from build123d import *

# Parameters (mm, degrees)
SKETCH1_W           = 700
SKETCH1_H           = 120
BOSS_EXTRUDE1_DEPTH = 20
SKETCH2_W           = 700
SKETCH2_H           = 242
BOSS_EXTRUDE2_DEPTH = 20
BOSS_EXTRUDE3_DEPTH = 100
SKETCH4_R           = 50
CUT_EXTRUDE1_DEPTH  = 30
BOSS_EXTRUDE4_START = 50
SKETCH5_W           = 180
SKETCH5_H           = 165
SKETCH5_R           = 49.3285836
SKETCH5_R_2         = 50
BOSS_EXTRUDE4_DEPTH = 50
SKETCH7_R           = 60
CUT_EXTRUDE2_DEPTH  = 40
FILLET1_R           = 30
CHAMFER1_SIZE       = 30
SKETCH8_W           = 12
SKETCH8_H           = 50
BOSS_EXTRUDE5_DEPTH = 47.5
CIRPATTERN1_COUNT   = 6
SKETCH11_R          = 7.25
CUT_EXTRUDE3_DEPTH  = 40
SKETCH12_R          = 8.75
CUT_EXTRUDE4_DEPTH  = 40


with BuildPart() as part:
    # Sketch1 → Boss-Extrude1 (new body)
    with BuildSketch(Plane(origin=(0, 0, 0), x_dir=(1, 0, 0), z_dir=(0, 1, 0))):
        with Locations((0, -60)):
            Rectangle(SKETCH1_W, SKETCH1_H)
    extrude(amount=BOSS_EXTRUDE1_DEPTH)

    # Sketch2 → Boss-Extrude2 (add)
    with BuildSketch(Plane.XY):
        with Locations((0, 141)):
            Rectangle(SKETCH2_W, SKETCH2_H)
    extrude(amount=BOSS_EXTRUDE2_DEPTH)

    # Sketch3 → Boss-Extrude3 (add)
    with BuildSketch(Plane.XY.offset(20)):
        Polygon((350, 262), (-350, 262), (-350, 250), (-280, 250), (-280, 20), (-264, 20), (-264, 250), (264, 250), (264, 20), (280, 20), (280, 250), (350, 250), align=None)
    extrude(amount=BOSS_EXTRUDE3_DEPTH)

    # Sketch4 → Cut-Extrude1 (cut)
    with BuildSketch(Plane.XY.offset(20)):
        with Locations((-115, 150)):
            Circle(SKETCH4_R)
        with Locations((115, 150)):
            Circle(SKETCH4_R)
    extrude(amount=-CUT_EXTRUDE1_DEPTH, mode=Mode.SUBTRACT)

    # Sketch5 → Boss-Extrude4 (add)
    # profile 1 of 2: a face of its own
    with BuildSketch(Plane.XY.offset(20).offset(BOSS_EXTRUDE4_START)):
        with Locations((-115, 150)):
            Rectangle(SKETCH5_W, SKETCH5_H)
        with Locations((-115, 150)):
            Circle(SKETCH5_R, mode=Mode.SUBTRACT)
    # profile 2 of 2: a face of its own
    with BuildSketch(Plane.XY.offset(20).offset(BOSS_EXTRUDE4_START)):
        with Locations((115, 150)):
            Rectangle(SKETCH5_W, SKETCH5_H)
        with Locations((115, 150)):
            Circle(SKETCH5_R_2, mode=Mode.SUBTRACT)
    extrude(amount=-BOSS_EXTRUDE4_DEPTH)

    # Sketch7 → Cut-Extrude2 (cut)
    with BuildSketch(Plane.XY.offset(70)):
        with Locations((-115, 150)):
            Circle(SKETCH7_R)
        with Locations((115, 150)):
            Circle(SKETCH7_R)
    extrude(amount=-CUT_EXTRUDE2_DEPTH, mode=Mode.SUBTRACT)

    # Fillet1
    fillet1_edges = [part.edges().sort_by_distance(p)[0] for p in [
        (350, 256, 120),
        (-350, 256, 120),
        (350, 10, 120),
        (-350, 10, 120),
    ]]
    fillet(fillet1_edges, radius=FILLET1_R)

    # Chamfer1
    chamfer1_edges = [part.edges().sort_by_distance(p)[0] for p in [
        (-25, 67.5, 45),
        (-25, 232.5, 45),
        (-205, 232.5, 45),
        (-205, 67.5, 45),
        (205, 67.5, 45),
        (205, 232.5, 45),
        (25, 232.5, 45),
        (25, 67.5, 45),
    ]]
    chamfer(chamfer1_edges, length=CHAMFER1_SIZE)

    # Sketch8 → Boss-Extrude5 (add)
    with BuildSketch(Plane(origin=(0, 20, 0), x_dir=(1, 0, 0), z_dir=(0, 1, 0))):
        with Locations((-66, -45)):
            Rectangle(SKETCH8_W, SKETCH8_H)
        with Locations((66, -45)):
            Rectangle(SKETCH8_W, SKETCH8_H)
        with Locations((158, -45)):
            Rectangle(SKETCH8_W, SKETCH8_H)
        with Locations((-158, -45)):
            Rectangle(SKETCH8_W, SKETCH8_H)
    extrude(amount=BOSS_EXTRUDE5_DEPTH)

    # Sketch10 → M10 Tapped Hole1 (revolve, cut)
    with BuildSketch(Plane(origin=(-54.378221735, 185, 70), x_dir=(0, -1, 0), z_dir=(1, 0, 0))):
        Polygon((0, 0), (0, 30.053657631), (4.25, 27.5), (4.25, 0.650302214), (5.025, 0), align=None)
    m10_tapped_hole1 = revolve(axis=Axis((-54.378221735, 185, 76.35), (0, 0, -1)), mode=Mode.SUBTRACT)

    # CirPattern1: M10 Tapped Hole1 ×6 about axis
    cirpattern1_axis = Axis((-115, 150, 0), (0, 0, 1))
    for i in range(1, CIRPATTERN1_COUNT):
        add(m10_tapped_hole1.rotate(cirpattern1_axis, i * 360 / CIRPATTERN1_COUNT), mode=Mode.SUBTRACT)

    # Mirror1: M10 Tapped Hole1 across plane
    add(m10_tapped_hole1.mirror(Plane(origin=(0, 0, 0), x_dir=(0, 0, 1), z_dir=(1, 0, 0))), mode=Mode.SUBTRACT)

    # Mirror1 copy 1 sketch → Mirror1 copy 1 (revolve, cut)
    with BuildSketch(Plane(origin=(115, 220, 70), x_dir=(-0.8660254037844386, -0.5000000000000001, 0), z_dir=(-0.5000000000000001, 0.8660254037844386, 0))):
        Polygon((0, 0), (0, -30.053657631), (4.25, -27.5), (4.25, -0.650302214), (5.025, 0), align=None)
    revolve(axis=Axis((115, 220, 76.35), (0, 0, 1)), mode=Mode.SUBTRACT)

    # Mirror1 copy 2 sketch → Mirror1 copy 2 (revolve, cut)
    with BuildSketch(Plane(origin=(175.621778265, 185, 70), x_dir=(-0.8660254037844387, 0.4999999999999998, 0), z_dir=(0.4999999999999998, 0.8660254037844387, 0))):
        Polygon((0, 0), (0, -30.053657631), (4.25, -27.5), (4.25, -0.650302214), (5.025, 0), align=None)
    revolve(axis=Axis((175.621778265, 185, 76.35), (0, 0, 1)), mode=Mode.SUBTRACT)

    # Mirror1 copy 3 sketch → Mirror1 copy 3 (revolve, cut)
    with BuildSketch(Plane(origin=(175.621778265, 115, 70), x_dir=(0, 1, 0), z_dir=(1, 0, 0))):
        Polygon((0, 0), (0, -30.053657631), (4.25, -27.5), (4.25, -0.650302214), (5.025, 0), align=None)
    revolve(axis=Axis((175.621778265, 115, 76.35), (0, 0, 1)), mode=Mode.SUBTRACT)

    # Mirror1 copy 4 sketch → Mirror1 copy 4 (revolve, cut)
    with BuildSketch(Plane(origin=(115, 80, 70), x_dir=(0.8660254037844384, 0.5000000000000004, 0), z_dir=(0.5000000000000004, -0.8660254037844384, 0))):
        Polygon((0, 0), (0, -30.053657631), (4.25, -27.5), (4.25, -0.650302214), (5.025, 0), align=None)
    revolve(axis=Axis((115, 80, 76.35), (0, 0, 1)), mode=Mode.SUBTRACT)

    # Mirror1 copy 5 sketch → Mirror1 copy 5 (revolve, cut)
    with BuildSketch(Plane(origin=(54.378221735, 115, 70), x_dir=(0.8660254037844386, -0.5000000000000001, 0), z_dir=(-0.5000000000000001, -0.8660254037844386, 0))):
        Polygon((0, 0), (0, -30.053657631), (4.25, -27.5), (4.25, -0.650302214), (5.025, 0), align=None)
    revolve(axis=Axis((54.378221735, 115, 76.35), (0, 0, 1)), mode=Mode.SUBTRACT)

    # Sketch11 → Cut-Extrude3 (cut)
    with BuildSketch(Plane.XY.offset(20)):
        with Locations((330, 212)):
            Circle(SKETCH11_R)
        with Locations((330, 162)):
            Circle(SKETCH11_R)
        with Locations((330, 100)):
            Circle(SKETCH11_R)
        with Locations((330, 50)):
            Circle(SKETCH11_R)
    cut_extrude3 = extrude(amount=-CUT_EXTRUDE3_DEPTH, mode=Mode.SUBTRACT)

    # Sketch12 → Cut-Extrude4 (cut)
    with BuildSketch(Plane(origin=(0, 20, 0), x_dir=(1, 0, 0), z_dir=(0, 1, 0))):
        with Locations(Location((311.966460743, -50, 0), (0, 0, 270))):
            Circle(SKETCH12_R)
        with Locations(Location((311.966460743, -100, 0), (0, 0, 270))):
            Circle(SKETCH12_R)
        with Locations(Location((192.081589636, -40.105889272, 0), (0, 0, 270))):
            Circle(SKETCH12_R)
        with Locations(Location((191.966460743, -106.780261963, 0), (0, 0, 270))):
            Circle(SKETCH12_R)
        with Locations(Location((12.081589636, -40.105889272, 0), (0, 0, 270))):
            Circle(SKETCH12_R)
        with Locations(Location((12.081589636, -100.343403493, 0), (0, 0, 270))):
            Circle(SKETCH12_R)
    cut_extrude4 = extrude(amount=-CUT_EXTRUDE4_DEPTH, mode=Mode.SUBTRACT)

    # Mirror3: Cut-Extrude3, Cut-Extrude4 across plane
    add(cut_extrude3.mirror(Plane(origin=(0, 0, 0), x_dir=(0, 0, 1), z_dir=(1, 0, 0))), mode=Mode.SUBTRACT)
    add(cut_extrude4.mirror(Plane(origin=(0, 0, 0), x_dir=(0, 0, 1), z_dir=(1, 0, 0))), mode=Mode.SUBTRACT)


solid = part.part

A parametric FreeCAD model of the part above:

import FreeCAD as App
import Part
import Sketcher

V = App.Vector
Q = App.Units.Quantity


def edges_at(feature, points):
    """Names of the edges that pass closest to the given points."""
    edges = feature.Shape.Edges
    near = lambda p: min(range(len(edges)), key=lambda i: edges[i].distToShape(Part.Vertex(*p))[0])
    return sorted({f"Edge{near(p) + 1}" for p in points})

doc = App.newDocument("Part")
body = doc.addObject("PartDesign::Body", "Body")

# Sketch on XZ plane
sketch1 = body.newObject("Sketcher::SketchObject", "Sketch")
sketch1.AttachmentSupport = (doc.getObject("XZ_Plane"), [""])
sketch1.MapMode = "FlatFace"
sketch1.addGeometry([
    Part.LineSegment(V(-350, 0, 0), V(-350, 120, 0)),
    Part.LineSegment(V(-350, 120, 0), V(350, 120, 0)),
    Part.LineSegment(V(350, 120, 0), V(350, 0, 0)),
    Part.LineSegment(V(350, 0, 0), V(-350, 0, 0)),
], False)
sketch1.addConstraint([
    Sketcher.Constraint("Coincident", 0, 2, 1, 1),
    Sketcher.Constraint("Coincident", 1, 2, 2, 1),
    Sketcher.Constraint("Coincident", 2, 2, 3, 1),
    Sketcher.Constraint("Coincident", 3, 2, 0, 1),
    Sketcher.Constraint("Vertical", 0),
    Sketcher.Constraint("Horizontal", 1),
    Sketcher.Constraint("Vertical", 2),
    Sketcher.Constraint("Horizontal", 3),
    Sketcher.Constraint("Symmetric", 2, 2, 3, 2, -1, 1),
    Sketcher.Constraint("DistanceX", 1, 1, 1, 2, Q("700 mm")),
    Sketcher.Constraint("DistanceY", 0, 1, 0, 2, Q("120 mm")),
])
pad1 = body.newObject("PartDesign::Pad", "Pad")
pad1.Profile = sketch1
pad1.Length = 20
pad1.Reversed = True

# Sketch on XY plane
sketch2 = body.newObject("Sketcher::SketchObject", "Sketch001")
sketch2.AttachmentSupport = (doc.getObject("XY_Plane"), [""])
sketch2.MapMode = "FlatFace"
sketch2.addGeometry([
    Part.LineSegment(V(-350, 262, 0), V(-350, 20, 0)),
    Part.LineSegment(V(-350, 20, 0), V(350, 20, 0)),
    Part.LineSegment(V(350, 20, 0), V(350, 262, 0)),
    Part.LineSegment(V(350, 262, 0), V(-350, 262, 0)),
], False)
sketch2.addConstraint([
    Sketcher.Constraint("Coincident", 0, 2, 1, 1),
    Sketcher.Constraint("Coincident", 1, 2, 2, 1),
    Sketcher.Constraint("Coincident", 2, 2, 3, 1),
    Sketcher.Constraint("Coincident", 3, 2, 0, 1),
    Sketcher.Constraint("Vertical", 0),
    Sketcher.Constraint("Horizontal", 1),
    Sketcher.Constraint("Vertical", 2),
    Sketcher.Constraint("Horizontal", 3),
    Sketcher.Constraint("DistanceX", 1, 1, 1, 2, Q("700 mm")),
    Sketcher.Constraint("DistanceY", 0, 2, 0, 1, Q("242 mm")),
    Sketcher.Constraint("DistanceX", 0, 2, -1, 1, Q("350 mm")),
    Sketcher.Constraint("DistanceY", -1, 1, 0, 2, Q("20 mm")),
])
pad2 = body.newObject("PartDesign::Pad", "Pad001")
pad2.Profile = sketch2
pad2.Length = 20

# Sketch on XY plane
sketch3 = body.newObject("Sketcher::SketchObject", "Sketch002")
sketch3.AttachmentSupport = (doc.getObject("XY_Plane"), [""])
sketch3.MapMode = "FlatFace"
sketch3.AttachmentOffset = App.Placement(V(0, 0, 20), App.Rotation())
sketch3.addGeometry([
    Part.LineSegment(V(350, 262, 0), V(-350, 262, 0)),  # 0
    Part.LineSegment(V(-350, 262, 0), V(-350, 250, 0)),  # 1
    Part.LineSegment(V(-350, 250, 0), V(-280, 250, 0)),  # 2
    Part.LineSegment(V(-280, 250, 0), V(-280, 20, 0)),  # 3
    Part.LineSegment(V(-280, 20, 0), V(-264, 20, 0)),  # 4
    Part.LineSegment(V(-264, 20, 0), V(-264, 250, 0)),  # 5
    Part.LineSegment(V(-264, 250, 0), V(264, 250, 0)),  # 6
    Part.LineSegment(V(264, 250, 0), V(264, 20, 0)),  # 7
    Part.LineSegment(V(264, 20, 0), V(280, 20, 0)),  # 8
    Part.LineSegment(V(280, 20, 0), V(280, 250, 0)),  # 9
    Part.LineSegment(V(280, 250, 0), V(350, 250, 0)),  # 10
    Part.LineSegment(V(350, 250, 0), V(350, 262, 0)),  # 11
], False)
sketch3.addConstraint([
    Sketcher.Constraint("Coincident", 0, 2, 1, 1),
    Sketcher.Constraint("Coincident", 1, 2, 2, 1),
    Sketcher.Constraint("Coincident", 2, 2, 3, 1),
    Sketcher.Constraint("Coincident", 3, 2, 4, 1),
    Sketcher.Constraint("Coincident", 4, 2, 5, 1),
    Sketcher.Constraint("Coincident", 5, 2, 6, 1),
    Sketcher.Constraint("Coincident", 6, 2, 7, 1),
    Sketcher.Constraint("Coincident", 7, 2, 8, 1),
    Sketcher.Constraint("Coincident", 8, 2, 9, 1),
    Sketcher.Constraint("Coincident", 9, 2, 10, 1),
    Sketcher.Constraint("Coincident", 10, 2, 11, 1),
    Sketcher.Constraint("Coincident", 11, 2, 0, 1),
    Sketcher.Constraint("Horizontal", 0),
    Sketcher.Constraint("Vertical", 1),
    Sketcher.Constraint("Horizontal", 2),
    Sketcher.Constraint("Vertical", 3),
    Sketcher.Constraint("Horizontal", 4),
    Sketcher.Constraint("Vertical", 5),
    Sketcher.Constraint("Horizontal", 6),
    Sketcher.Constraint("Vertical", 7),
    Sketcher.Constraint("Horizontal", 8),
    Sketcher.Constraint("Vertical", 9),
    Sketcher.Constraint("Horizontal", 10),
    Sketcher.Constraint("Vertical", 11),
    Sketcher.Constraint("Symmetric", 4, 2, 7, 2, -2),
    Sketcher.Constraint("Symmetric", 2, 2, 9, 2, -2),
    Sketcher.Constraint("Horizontal", 2, 2, 5, 2),
    Sketcher.Constraint("Equal", 2, 10),
    Sketcher.Constraint("DistanceX", 0, 2, 0, 1, Q("700 mm")),
    Sketcher.Constraint("DistanceX", 2, 1, 2, 2, Q("70 mm")),
    Sketcher.Constraint("DistanceX", 4, 1, 4, 2, Q("16 mm")),
    Sketcher.Constraint("DistanceY", 1, 2, 1, 1, Q("12 mm")),
    Sketcher.Constraint("DistanceY", 3, 2, 3, 1, Q("230 mm")),
    Sketcher.Constraint("DistanceY", -1, 1, 0, 2, Q("262 mm")),
])
pad3 = body.newObject("PartDesign::Pad", "Pad002")
pad3.Profile = sketch3
pad3.Length = 100

# Sketch on XY plane
sketch4 = body.newObject("Sketcher::SketchObject", "Sketch003")
sketch4.AttachmentSupport = (doc.getObject("XY_Plane"), [""])
sketch4.MapMode = "FlatFace"
sketch4.AttachmentOffset = App.Placement(V(0, 0, 20), App.Rotation())
sketch4.addGeometry([
    Part.Circle(V(-115, 150, 0), V(0, 0, 1), 50),
    Part.Circle(V(115, 150, 0), V(0, 0, 1), 50),
], False)
sketch4.addConstraint([
    Sketcher.Constraint("Equal", 0, 1),
    Sketcher.Constraint("Symmetric", 0, 3, 1, 3, -2),
    Sketcher.Constraint("Diameter", 0, Q("100 mm")),
    Sketcher.Constraint("DistanceX", 0, 3, -1, 1, Q("115 mm")),
    Sketcher.Constraint("DistanceY", -1, 1, 0, 3, Q("150 mm")),
])
pocket1 = body.newObject("PartDesign::Pocket", "Pocket")
pocket1.Profile = sketch4
pocket1.Length = 30

# Sketch on XY plane
sketch5 = body.newObject("Sketcher::SketchObject", "Sketch004")
sketch5.AttachmentSupport = (doc.getObject("XY_Plane"), [""])
sketch5.MapMode = "FlatFace"
sketch5.AttachmentOffset = App.Placement(V(0, 0, 70), App.Rotation())
sketch5.addGeometry([
    Part.LineSegment(V(-205, 232, 0), V(-205, 68, 0)),  # 0
    Part.LineSegment(V(-205, 68, 0), V(-25, 68, 0)),  # 1
    Part.LineSegment(V(-25, 68, 0), V(-25, 232, 0)),  # 2
    Part.LineSegment(V(-25, 232, 0), V(-205, 232, 0)),  # 3
    Part.Circle(V(-115, 150, 0), V(0, 0, 1), 49),  # 4
    Part.LineSegment(V(25, 232, 0), V(25, 68, 0)),  # 5
    Part.LineSegment(V(25, 68, 0), V(205, 68, 0)),  # 6
    Part.LineSegment(V(205, 68, 0), V(205, 232, 0)),  # 7
    Part.LineSegment(V(205, 232, 0), V(25, 232, 0)),  # 8
    Part.Circle(V(115, 150, 0), V(0, 0, 1), 50),  # 9
], False)
sketch5.addConstraint([
    Sketcher.Constraint("Coincident", 0, 2, 1, 1),
    Sketcher.Constraint("Coincident", 1, 2, 2, 1),
    Sketcher.Constraint("Coincident", 2, 2, 3, 1),
    Sketcher.Constraint("Coincident", 3, 2, 0, 1),
    Sketcher.Constraint("Coincident", 5, 2, 6, 1),
    Sketcher.Constraint("Coincident", 6, 2, 7, 1),
    Sketcher.Constraint("Coincident", 7, 2, 8, 1),
    Sketcher.Constraint("Coincident", 8, 2, 5, 1),
    Sketcher.Constraint("Vertical", 0),
    Sketcher.Constraint("Horizontal", 1),
    Sketcher.Constraint("Vertical", 2),
    Sketcher.Constraint("Horizontal", 3),
    Sketcher.Constraint("Vertical", 5),
    Sketcher.Constraint("Horizontal", 6),
    Sketcher.Constraint("Vertical", 7),
    Sketcher.Constraint("Horizontal", 8),
    Sketcher.Constraint("Symmetric", 4, 3, 9, 3, -2),
    Sketcher.Constraint("Symmetric", 1, 2, 5, 2, -2),
    Sketcher.Constraint("Symmetric", 3, 2, 7, 2, -2),
    Sketcher.Constraint("Diameter", 9, Q("100 mm")),
    Sketcher.Constraint("DistanceX", 1, 1, 1, 2, Q("180 mm")),
    Sketcher.Constraint("DistanceY", 0, 2, 0, 1, Q("165 mm")),
    Sketcher.Constraint("DistanceX", 4, 3, -1, 1, Q("115 mm")),
    Sketcher.Constraint("DistanceY", -1, 1, 4, 3, Q("150 mm")),
    Sketcher.Constraint("DistanceX", 0, 2, -1, 1, Q("205 mm")),
    Sketcher.Constraint("DistanceY", -1, 1, 0, 2, Q("67.5 mm")),
    Sketcher.Constraint("Diameter", 4, Q("98.657167 mm")),
])
pad4 = body.newObject("PartDesign::Pad", "Pad003")
pad4.Profile = sketch5
pad4.Length = 50
pad4.Reversed = True

# Sketch on XY plane
sketch6 = body.newObject("Sketcher::SketchObject", "Sketch005")
sketch6.AttachmentSupport = (doc.getObject("XY_Plane"), [""])
sketch6.MapMode = "FlatFace"
sketch6.AttachmentOffset = App.Placement(V(0, 0, 70), App.Rotation())
sketch6.addGeometry([
    Part.Circle(V(-115, 150, 0), V(0, 0, 1), 60),
    Part.Circle(V(115, 150, 0), V(0, 0, 1), 60),
], False)
sketch6.addConstraint([
    Sketcher.Constraint("Equal", 0, 1),
    Sketcher.Constraint("Symmetric", 0, 3, 1, 3, -2),
    Sketcher.Constraint("Diameter", 0, Q("120 mm")),
    Sketcher.Constraint("DistanceX", 0, 3, -1, 1, Q("115 mm")),
    Sketcher.Constraint("DistanceY", -1, 1, 0, 3, Q("150 mm")),
])
pocket2 = body.newObject("PartDesign::Pocket", "Pocket001")
pocket2.Profile = sketch6
pocket2.Length = 40
doc.recompute()

fillet = body.newObject("PartDesign::Fillet", "Fillet")
fillet.Base = (pocket2, edges_at(pocket2, [
    (350, 256, 120),
    (-350, 256, 120),
    (350, 10, 120),
    (-350, 10, 120),
]))
fillet.Radius = 30
doc.recompute()

chamfer = body.newObject("PartDesign::Chamfer", "Chamfer")
chamfer.Base = (fillet, edges_at(fillet, [
    (-25, 67.5, 45),
    (-25, 232.5, 45),
    (-205, 232.5, 45),
    (-205, 67.5, 45),
    (205, 67.5, 45),
    (205, 232.5, 45),
    (25, 232.5, 45),
    (25, 67.5, 45),
]))
chamfer.Size = 30

# Sketch on XZ plane
sketch7 = body.newObject("Sketcher::SketchObject", "Sketch006")
sketch7.AttachmentSupport = (doc.getObject("XZ_Plane"), [""])
sketch7.MapMode = "FlatFace"
sketch7.AttachmentOffset = App.Placement(V(0, 0, -20), App.Rotation())
sketch7.addGeometry([
    Part.LineSegment(V(-72, 20, 0), V(-72, 70, 0)),  # 0
    Part.LineSegment(V(-72, 70, 0), V(-60, 70, 0)),  # 1
    Part.LineSegment(V(-60, 70, 0), V(-60, 20, 0)),  # 2
    Part.LineSegment(V(-60, 20, 0), V(-72, 20, 0)),  # 3
    Part.LineSegment(V(60, 20, 0), V(60, 70, 0)),  # 4
    Part.LineSegment(V(60, 70, 0), V(72, 70, 0)),  # 5
    Part.LineSegment(V(72, 70, 0), V(72, 20, 0)),  # 6
    Part.LineSegment(V(72, 20, 0), V(60, 20, 0)),  # 7
    Part.LineSegment(V(152, 20, 0), V(152, 70, 0)),  # 8
    Part.LineSegment(V(152, 70, 0), V(164, 70, 0)),  # 9
    Part.LineSegment(V(164, 70, 0), V(164, 20, 0)),  # 10
    Part.LineSegment(V(164, 20, 0), V(152, 20, 0)),  # 11
    Part.LineSegment(V(-164, 20, 0), V(-164, 70, 0)),  # 12
    Part.LineSegment(V(-164, 70, 0), V(-152, 70, 0)),  # 13
    Part.LineSegment(V(-152, 70, 0), V(-152, 20, 0)),  # 14
    Part.LineSegment(V(-152, 20, 0), V(-164, 20, 0)),  # 15
], False)
sketch7.addConstraint([
    Sketcher.Constraint("Coincident", 0, 2, 1, 1),
    Sketcher.Constraint("Coincident", 1, 2, 2, 1),
    Sketcher.Constraint("Coincident", 2, 2, 3, 1),
    Sketcher.Constraint("Coincident", 3, 2, 0, 1),
    Sketcher.Constraint("Coincident", 4, 2, 5, 1),
    Sketcher.Constraint("Coincident", 5, 2, 6, 1),
    Sketcher.Constraint("Coincident", 6, 2, 7, 1),
    Sketcher.Constraint("Coincident", 7, 2, 4, 1),
    Sketcher.Constraint("Coincident", 8, 2, 9, 1),
    Sketcher.Constraint("Coincident", 9, 2, 10, 1),
    Sketcher.Constraint("Coincident", 10, 2, 11, 1),
    Sketcher.Constraint("Coincident", 11, 2, 8, 1),
    Sketcher.Constraint("Coincident", 12, 2, 13, 1),
    Sketcher.Constraint("Coincident", 13, 2, 14, 1),
    Sketcher.Constraint("Coincident", 14, 2, 15, 1),
    Sketcher.Constraint("Coincident", 15, 2, 12, 1),
    Sketcher.Constraint("Vertical", 0),
    Sketcher.Constraint("Horizontal", 1),
    Sketcher.Constraint("Vertical", 2),
    Sketcher.Constraint("Horizontal", 3),
    Sketcher.Constraint("Vertical", 4),
    Sketcher.Constraint("Horizontal", 5),
    Sketcher.Constraint("Vertical", 6),
    Sketcher.Constraint("Horizontal", 7),
    Sketcher.Constraint("Vertical", 8),
    Sketcher.Constraint("Horizontal", 9),
    Sketcher.Constraint("Vertical", 10),
    Sketcher.Constraint("Horizontal", 11),
    Sketcher.Constraint("Vertical", 12),
    Sketcher.Constraint("Horizontal", 13),
    Sketcher.Constraint("Vertical", 14),
    Sketcher.Constraint("Horizontal", 15),
    Sketcher.Constraint("Symmetric", 1, 2, 4, 2, -2),
    Sketcher.Constraint("Symmetric", 3, 2, 6, 2, -2),
    Sketcher.Constraint("Symmetric", 9, 2, 12, 2, -2),
    Sketcher.Constraint("Symmetric", 11, 2, 14, 2, -2),
    Sketcher.Constraint("Horizontal", 5, 2, 8, 2),
    Sketcher.Constraint("Horizontal", 7, 2, 10, 2),
    Sketcher.Constraint("Equal", 7, 9),
    Sketcher.Constraint("DistanceX", 1, 1, 1, 2, Q("12 mm")),
    Sketcher.Constraint("DistanceY", 0, 1, 0, 2, Q("50 mm")),
    Sketcher.Constraint("DistanceX", 0, 2, -1, 1, Q("72 mm")),
    Sketcher.Constraint("DistanceY", -1, 1, 0, 2, Q("70 mm")),
    Sketcher.Constraint("DistanceX", -1, 1, 8, 2, Q("152 mm")),
])
pad5 = body.newObject("PartDesign::Pad", "Pad004")
pad5.Profile = sketch7
pad5.Length = 47.5
pad5.Reversed = True

# Sketch on YZ plane
sketch8 = body.newObject("Sketcher::SketchObject", "Sketch007")
sketch8.AttachmentSupport = (doc.getObject("YZ_Plane"), [""])
sketch8.MapMode = "FlatFace"
sketch8.AttachmentOffset = App.Placement(V(0, 0, -54.378222), App.Rotation())
sketch8.addGeometry([
    Part.LineSegment(V(185, 39.9, 0), V(185, 70, 0)),  # 0
    Part.LineSegment(V(185, 70, 0), V(180, 70, 0)),  # 1
    Part.LineSegment(V(180, 70, 0), V(180.8, 69.3, 0)),  # 2
    Part.LineSegment(V(180.8, 69.3, 0), V(180.8, 42.5, 0)),  # 3
    Part.LineSegment(V(180.8, 42.5, 0), V(185, 39.9, 0)),  # 4
], False)
sketch8.addGeometry(Part.LineSegment(V(185, 70, 0), V(185, 39.9, 0)), True)  # axis
sketch8.addConstraint([
    Sketcher.Constraint("Coincident", 0, 2, 1, 1),
    Sketcher.Constraint("Coincident", 1, 2, 2, 1),
    Sketcher.Constraint("Coincident", 2, 2, 3, 1),
    Sketcher.Constraint("Coincident", 3, 2, 4, 1),
    Sketcher.Constraint("Coincident", 4, 2, 0, 1),
    Sketcher.Constraint("Vertical", 0),
    Sketcher.Constraint("Horizontal", 1),
    Sketcher.Constraint("Vertical", 3),
    Sketcher.Constraint("Vertical", 5),
    Sketcher.Constraint("Coincident", 5, 1, 0, 2),
    Sketcher.Constraint("Equal", 0, 5),
    Sketcher.Constraint("Angle", 2, Q("-40 deg")),
    Sketcher.Constraint("Angle", 4, Q("-31 deg")),
    Sketcher.Constraint("DistanceX", -1, 1, 0, 2, Q("185 mm")),
    Sketcher.Constraint("DistanceY", -1, 1, 0, 2, Q("70 mm")),
    Sketcher.Constraint("DistanceY", -1, 1, 3, 2, Q("42.5 mm")),
    Sketcher.Constraint("DistanceX", 1, 2, 1, 1, Q("5.025 mm")),
    Sketcher.Constraint("DistanceX", -1, 1, 2, 2, Q("180.75 mm")),
])
groove = body.newObject("PartDesign::Groove", "Groove")
groove.Profile = sketch8
groove.ReferenceAxis = (sketch8, ["Axis0"])
groove.Angle = 360
doc.recompute()

datumline = body.newObject("PartDesign::Line", "DatumLine")
datumline.Placement = App.Placement(V(-115, 150, 0), App.Rotation(V(0, 0, 1), V(0, 0, 1)))
polarpattern = body.newObject("PartDesign::PolarPattern", "PolarPattern")
polarpattern.Originals = [groove]
polarpattern.Axis = (datumline, [""])
polarpattern.Angle = 360
polarpattern.Occurrences = 6
body.Tip = polarpattern
doc.recompute()

mirrored = body.newObject("PartDesign::Mirrored", "Mirrored")
mirrored.Originals = [groove]
mirrored.MirrorPlane = (doc.getObject("YZ_Plane"), [""])
body.Tip = mirrored

# Sketch on an angled plane
sketch9 = body.newObject("Sketcher::SketchObject", "Sketch008")
sketch9.Placement = App.Placement(V(115, 220, 70), App.Rotation(V(-0.866025404, -0.5, 0), V(0, 0, 1), V(-0.5, 0.866025404, 0), "ZXY"))
sketch9.addGeometry([
    Part.LineSegment(V(0, 0, 0), V(0, -30.1, 0)),  # 0
    Part.LineSegment(V(0, -30.1, 0), V(4.3, -27.5, 0)),  # 1
    Part.LineSegment(V(4.3, -27.5, 0), V(4.3, -0.7, 0)),  # 2
    Part.LineSegment(V(4.3, -0.7, 0), V(5, 0, 0)),  # 3
    Part.LineSegment(V(5, 0, 0), V(0, 0, 0)),  # 4
], False)
sketch9.addConstraint([
    Sketcher.Constraint("Coincident", 0, 2, 1, 1),
    Sketcher.Constraint("Coincident", 1, 2, 2, 1),
    Sketcher.Constraint("Coincident", 2, 2, 3, 1),
    Sketcher.Constraint("Coincident", 3, 2, 4, 1),
    Sketcher.Constraint("Coincident", 4, 2, 0, 1),
    Sketcher.Constraint("Vertical", 0),
    Sketcher.Constraint("Vertical", 2),
    Sketcher.Constraint("Horizontal", 4),
    Sketcher.Constraint("Coincident", 4, 2, -1, 1),
    Sketcher.Constraint("Angle", 1, Q("31 deg")),
    Sketcher.Constraint("Angle", 3, Q("40 deg")),
    Sketcher.Constraint("DistanceY", 1, 2, -1, 1, Q("27.5 mm")),
    Sketcher.Constraint("DistanceX", 4, 2, 4, 1, Q("5.025 mm")),
    Sketcher.Constraint("DistanceX", -1, 1, 1, 2, Q("4.25 mm")),
])
groove2 = body.newObject("PartDesign::Groove", "Groove001")
groove2.Profile = sketch9
groove2.ReferenceAxis = (sketch9, ["V_Axis"])
groove2.Angle = 360

# Sketch on an angled plane
sketch10 = body.newObject("Sketcher::SketchObject", "Sketch009")
sketch10.Placement = App.Placement(V(175.621778, 185, 70), App.Rotation(V(-0.866025404, 0.5, 0), V(0, 0, 1), V(0.5, 0.866025404, 0), "ZXY"))
sketch10.addGeometry([
    Part.LineSegment(V(0, 0, 0), V(0, -30.1, 0)),  # 0
    Part.LineSegment(V(0, -30.1, 0), V(4.3, -27.5, 0)),  # 1
    Part.LineSegment(V(4.3, -27.5, 0), V(4.3, -0.7, 0)),  # 2
    Part.LineSegment(V(4.3, -0.7, 0), V(5, 0, 0)),  # 3
    Part.LineSegment(V(5, 0, 0), V(0, 0, 0)),  # 4
], False)
sketch10.addConstraint([
    Sketcher.Constraint("Coincident", 0, 2, 1, 1),
    Sketcher.Constraint("Coincident", 1, 2, 2, 1),
    Sketcher.Constraint("Coincident", 2, 2, 3, 1),
    Sketcher.Constraint("Coincident", 3, 2, 4, 1),
    Sketcher.Constraint("Coincident", 4, 2, 0, 1),
    Sketcher.Constraint("Vertical", 0),
    Sketcher.Constraint("Vertical", 2),
    Sketcher.Constraint("Horizontal", 4),
    Sketcher.Constraint("Coincident", 4, 2, -1, 1),
    Sketcher.Constraint("Angle", 1, Q("31 deg")),
    Sketcher.Constraint("Angle", 3, Q("40 deg")),
    Sketcher.Constraint("DistanceY", 1, 2, -1, 1, Q("27.5 mm")),
    Sketcher.Constraint("DistanceX", 4, 2, 4, 1, Q("5.025 mm")),
    Sketcher.Constraint("DistanceX", -1, 1, 1, 2, Q("4.25 mm")),
])
groove3 = body.newObject("PartDesign::Groove", "Groove002")
groove3.Profile = sketch10
groove3.ReferenceAxis = (sketch10, ["V_Axis"])
groove3.Angle = 360

# Sketch on YZ plane
sketch11 = body.newObject("Sketcher::SketchObject", "Sketch010")
sketch11.AttachmentSupport = (doc.getObject("YZ_Plane"), [""])
sketch11.MapMode = "FlatFace"
sketch11.AttachmentOffset = App.Placement(V(0, 0, 175.621778), App.Rotation())
sketch11.addGeometry([
    Part.LineSegment(V(115, 70, 0), V(115, 39.9, 0)),  # 0
    Part.LineSegment(V(115, 39.9, 0), V(119.2, 42.5, 0)),  # 1
    Part.LineSegment(V(119.2, 42.5, 0), V(119.2, 69.3, 0)),  # 2
    Part.LineSegment(V(119.2, 69.3, 0), V(120, 70, 0)),  # 3
    Part.LineSegment(V(120, 70, 0), V(115, 70, 0)),  # 4
], False)
sketch11.addGeometry(Part.LineSegment(V(115, 39.9, 0), V(115, 70, 0)), True)  # axis
sketch11.addConstraint([
    Sketcher.Constraint("Coincident", 0, 2, 1, 1),
    Sketcher.Constraint("Coincident", 1, 2, 2, 1),
    Sketcher.Constraint("Coincident", 2, 2, 3, 1),
    Sketcher.Constraint("Coincident", 3, 2, 4, 1),
    Sketcher.Constraint("Coincident", 4, 2, 0, 1),
    Sketcher.Constraint("Vertical", 0),
    Sketcher.Constraint("Vertical", 2),
    Sketcher.Constraint("Horizontal", 4),
    Sketcher.Constraint("Vertical", 5),
    Sketcher.Constraint("Coincident", 5, 1, 0, 2),
    Sketcher.Constraint("Horizontal", 3, 2, 5, 2),
    Sketcher.Constraint("Angle", 1, Q("31 deg")),
    Sketcher.Constraint("Angle", 3, Q("40 deg")),
    Sketcher.Constraint("DistanceX", -1, 1, 0, 2, Q("115 mm")),
    Sketcher.Constraint("DistanceY", -1, 1, 3, 2, Q("70 mm")),
    Sketcher.Constraint("DistanceY", -1, 1, 1, 2, Q("42.5 mm")),
    Sketcher.Constraint("DistanceX", 4, 2, 4, 1, Q("5.025 mm")),
    Sketcher.Constraint("DistanceX", -1, 1, 1, 2, Q("119.25 mm")),
])
groove4 = body.newObject("PartDesign::Groove", "Groove003")
groove4.Profile = sketch11
groove4.ReferenceAxis = (sketch11, ["Axis0"])
groove4.Angle = 360

# Sketch on an angled plane
sketch12 = body.newObject("Sketcher::SketchObject", "Sketch011")
sketch12.Placement = App.Placement(V(115, 80, 70), App.Rotation(V(0.866025404, 0.5, 0), V(0, 0, 1), V(0.5, -0.866025404, 0), "ZXY"))
sketch12.addGeometry([
    Part.LineSegment(V(0, 0, 0), V(0, -30.1, 0)),  # 0
    Part.LineSegment(V(0, -30.1, 0), V(4.3, -27.5, 0)),  # 1
    Part.LineSegment(V(4.3, -27.5, 0), V(4.3, -0.7, 0)),  # 2
    Part.LineSegment(V(4.3, -0.7, 0), V(5, 0, 0)),  # 3
    Part.LineSegment(V(5, 0, 0), V(0, 0, 0)),  # 4
], False)
sketch12.addConstraint([
    Sketcher.Constraint("Coincident", 0, 2, 1, 1),
    Sketcher.Constraint("Coincident", 1, 2, 2, 1),
    Sketcher.Constraint("Coincident", 2, 2, 3, 1),
    Sketcher.Constraint("Coincident", 3, 2, 4, 1),
    Sketcher.Constraint("Coincident", 4, 2, 0, 1),
    Sketcher.Constraint("Vertical", 0),
    Sketcher.Constraint("Vertical", 2),
    Sketcher.Constraint("Horizontal", 4),
    Sketcher.Constraint("Coincident", 4, 2, -1, 1),
    Sketcher.Constraint("Angle", 1, Q("31 deg")),
    Sketcher.Constraint("Angle", 3, Q("40 deg")),
    Sketcher.Constraint("DistanceY", 1, 2, -1, 1, Q("27.5 mm")),
    Sketcher.Constraint("DistanceX", 4, 2, 4, 1, Q("5.025 mm")),
    Sketcher.Constraint("DistanceX", -1, 1, 1, 2, Q("4.25 mm")),
])
groove5 = body.newObject("PartDesign::Groove", "Groove004")
groove5.Profile = sketch12
groove5.ReferenceAxis = (sketch12, ["V_Axis"])
groove5.Angle = 360

# Sketch on an angled plane
sketch13 = body.newObject("Sketcher::SketchObject", "Sketch012")
sketch13.Placement = App.Placement(V(54.378222, 115, 70), App.Rotation(V(0.866025404, -0.5, 0), V(0, 0, 1), V(-0.5, -0.866025404, 0), "ZXY"))
sketch13.addGeometry([
    Part.LineSegment(V(0, 0, 0), V(0, -30.1, 0)),  # 0
    Part.LineSegment(V(0, -30.1, 0), V(4.3, -27.5, 0)),  # 1
    Part.LineSegment(V(4.3, -27.5, 0), V(4.3, -0.7, 0)),  # 2
    Part.LineSegment(V(4.3, -0.7, 0), V(5, 0, 0)),  # 3
    Part.LineSegment(V(5, 0, 0), V(0, 0, 0)),  # 4
], False)
sketch13.addConstraint([
    Sketcher.Constraint("Coincident", 0, 2, 1, 1),
    Sketcher.Constraint("Coincident", 1, 2, 2, 1),
    Sketcher.Constraint("Coincident", 2, 2, 3, 1),
    Sketcher.Constraint("Coincident", 3, 2, 4, 1),
    Sketcher.Constraint("Coincident", 4, 2, 0, 1),
    Sketcher.Constraint("Vertical", 0),
    Sketcher.Constraint("Vertical", 2),
    Sketcher.Constraint("Horizontal", 4),
    Sketcher.Constraint("Coincident", 4, 2, -1, 1),
    Sketcher.Constraint("Angle", 1, Q("31 deg")),
    Sketcher.Constraint("Angle", 3, Q("40 deg")),
    Sketcher.Constraint("DistanceY", 1, 2, -1, 1, Q("27.5 mm")),
    Sketcher.Constraint("DistanceX", 4, 2, 4, 1, Q("5.025 mm")),
    Sketcher.Constraint("DistanceX", -1, 1, 1, 2, Q("4.25 mm")),
])
groove6 = body.newObject("PartDesign::Groove", "Groove005")
groove6.Profile = sketch13
groove6.ReferenceAxis = (sketch13, ["V_Axis"])
groove6.Angle = 360

# Sketch on XY plane
sketch14 = body.newObject("Sketcher::SketchObject", "Sketch013")
sketch14.AttachmentSupport = (doc.getObject("XY_Plane"), [""])
sketch14.MapMode = "FlatFace"
sketch14.AttachmentOffset = App.Placement(V(0, 0, 20), App.Rotation())
sketch14.addGeometry([
    Part.Circle(V(330, 212, 0), V(0, 0, 1), 7),
    Part.Circle(V(330, 162, 0), V(0, 0, 1), 7),
    Part.Circle(V(330, 100, 0), V(0, 0, 1), 7),
    Part.Circle(V(330, 50, 0), V(0, 0, 1), 7),
], False)
sketch14.addConstraint([
    Sketcher.Constraint("Equal", 0, 1),
    Sketcher.Constraint("Equal", 1, 2),
    Sketcher.Constraint("Equal", 2, 3),
    Sketcher.Constraint("Vertical", 0, 3, 1, 3),
    Sketcher.Constraint("Vertical", 1, 3, 2, 3),
    Sketcher.Constraint("Vertical", 2, 3, 3, 3),
    Sketcher.Constraint("Diameter", 0, Q("14.5 mm")),
    Sketcher.Constraint("DistanceX", -1, 1, 0, 3, Q("330 mm")),
    Sketcher.Constraint("DistanceY", -1, 1, 0, 3, Q("212 mm")),
    Sketcher.Constraint("DistanceY", -1, 1, 1, 3, Q("162 mm")),
    Sketcher.Constraint("DistanceY", -1, 1, 2, 3, Q("100 mm")),
    Sketcher.Constraint("DistanceY", -1, 1, 3, 3, Q("50 mm")),
])
pocket3 = body.newObject("PartDesign::Pocket", "Pocket002")
pocket3.Profile = sketch14
pocket3.Length = 40

# Sketch on XZ plane
sketch15 = body.newObject("Sketcher::SketchObject", "Sketch014")
sketch15.AttachmentSupport = (doc.getObject("XZ_Plane"), [""])
sketch15.MapMode = "FlatFace"
sketch15.AttachmentOffset = App.Placement(V(0, 0, -20), App.Rotation())
sketch15.addGeometry([
    Part.Circle(V(312, 50, 0), V(0, 0, 1), 9),  # 0
    Part.Circle(V(312, 100, 0), V(0, 0, 1), 9),  # 1
    Part.Circle(V(192, 40, 0), V(0, 0, 1), 9),  # 2
    Part.Circle(V(192, 107, 0), V(0, 0, 1), 9),  # 3
    Part.Circle(V(12, 40, 0), V(0, 0, 1), 9),  # 4
    Part.Circle(V(12, 100, 0), V(0, 0, 1), 9),  # 5
], False)
sketch15.addConstraint([
    Sketcher.Constraint("Equal", 0, 1),
    Sketcher.Constraint("Equal", 1, 2),
    Sketcher.Constraint("Equal", 2, 3),
    Sketcher.Constraint("Equal", 3, 4),
    Sketcher.Constraint("Equal", 4, 5),
    Sketcher.Constraint("Horizontal", 2, 3, 4, 3),
    Sketcher.Constraint("Vertical", 0, 3, 1, 3),
    Sketcher.Constraint("Vertical", 4, 3, 5, 3),
    Sketcher.Constraint("Diameter", 0, Q("17.5 mm")),
    Sketcher.Constraint("DistanceY", -1, 1, 0, 3, Q("50 mm")),
    Sketcher.Constraint("DistanceY", -1, 1, 1, 3, Q("100 mm")),
    Sketcher.Constraint("DistanceX", 3, 3, 1, 3, Q("120 mm")),
    Sketcher.Constraint("DistanceX", 4, 3, 2, 3, Q("180 mm")),
    Sketcher.Constraint("DistanceX", -1, 1, 0, 3, Q("311.966461 mm")),
    Sketcher.Constraint("DistanceX", -1, 1, 2, 3, Q("192.08159 mm")),
    Sketcher.Constraint("DistanceY", -1, 1, 2, 3, Q("40.105889 mm")),
    Sketcher.Constraint("DistanceY", -1, 1, 3, 3, Q("106.780262 mm")),
    Sketcher.Constraint("DistanceY", 5, 3, 3, 3, Q("6.436858 mm")),
])
pocket4 = body.newObject("PartDesign::Pocket", "Pocket003")
pocket4.Profile = sketch15
pocket4.Length = 40
pocket4.Reversed = True
doc.recompute()

mirrored2 = body.newObject("PartDesign::Mirrored", "Mirrored001")
mirrored2.Originals = [pocket3, pocket4]
mirrored2.MirrorPlane = (doc.getObject("YZ_Plane"), [""])
body.Tip = mirrored2

doc.recompute()
